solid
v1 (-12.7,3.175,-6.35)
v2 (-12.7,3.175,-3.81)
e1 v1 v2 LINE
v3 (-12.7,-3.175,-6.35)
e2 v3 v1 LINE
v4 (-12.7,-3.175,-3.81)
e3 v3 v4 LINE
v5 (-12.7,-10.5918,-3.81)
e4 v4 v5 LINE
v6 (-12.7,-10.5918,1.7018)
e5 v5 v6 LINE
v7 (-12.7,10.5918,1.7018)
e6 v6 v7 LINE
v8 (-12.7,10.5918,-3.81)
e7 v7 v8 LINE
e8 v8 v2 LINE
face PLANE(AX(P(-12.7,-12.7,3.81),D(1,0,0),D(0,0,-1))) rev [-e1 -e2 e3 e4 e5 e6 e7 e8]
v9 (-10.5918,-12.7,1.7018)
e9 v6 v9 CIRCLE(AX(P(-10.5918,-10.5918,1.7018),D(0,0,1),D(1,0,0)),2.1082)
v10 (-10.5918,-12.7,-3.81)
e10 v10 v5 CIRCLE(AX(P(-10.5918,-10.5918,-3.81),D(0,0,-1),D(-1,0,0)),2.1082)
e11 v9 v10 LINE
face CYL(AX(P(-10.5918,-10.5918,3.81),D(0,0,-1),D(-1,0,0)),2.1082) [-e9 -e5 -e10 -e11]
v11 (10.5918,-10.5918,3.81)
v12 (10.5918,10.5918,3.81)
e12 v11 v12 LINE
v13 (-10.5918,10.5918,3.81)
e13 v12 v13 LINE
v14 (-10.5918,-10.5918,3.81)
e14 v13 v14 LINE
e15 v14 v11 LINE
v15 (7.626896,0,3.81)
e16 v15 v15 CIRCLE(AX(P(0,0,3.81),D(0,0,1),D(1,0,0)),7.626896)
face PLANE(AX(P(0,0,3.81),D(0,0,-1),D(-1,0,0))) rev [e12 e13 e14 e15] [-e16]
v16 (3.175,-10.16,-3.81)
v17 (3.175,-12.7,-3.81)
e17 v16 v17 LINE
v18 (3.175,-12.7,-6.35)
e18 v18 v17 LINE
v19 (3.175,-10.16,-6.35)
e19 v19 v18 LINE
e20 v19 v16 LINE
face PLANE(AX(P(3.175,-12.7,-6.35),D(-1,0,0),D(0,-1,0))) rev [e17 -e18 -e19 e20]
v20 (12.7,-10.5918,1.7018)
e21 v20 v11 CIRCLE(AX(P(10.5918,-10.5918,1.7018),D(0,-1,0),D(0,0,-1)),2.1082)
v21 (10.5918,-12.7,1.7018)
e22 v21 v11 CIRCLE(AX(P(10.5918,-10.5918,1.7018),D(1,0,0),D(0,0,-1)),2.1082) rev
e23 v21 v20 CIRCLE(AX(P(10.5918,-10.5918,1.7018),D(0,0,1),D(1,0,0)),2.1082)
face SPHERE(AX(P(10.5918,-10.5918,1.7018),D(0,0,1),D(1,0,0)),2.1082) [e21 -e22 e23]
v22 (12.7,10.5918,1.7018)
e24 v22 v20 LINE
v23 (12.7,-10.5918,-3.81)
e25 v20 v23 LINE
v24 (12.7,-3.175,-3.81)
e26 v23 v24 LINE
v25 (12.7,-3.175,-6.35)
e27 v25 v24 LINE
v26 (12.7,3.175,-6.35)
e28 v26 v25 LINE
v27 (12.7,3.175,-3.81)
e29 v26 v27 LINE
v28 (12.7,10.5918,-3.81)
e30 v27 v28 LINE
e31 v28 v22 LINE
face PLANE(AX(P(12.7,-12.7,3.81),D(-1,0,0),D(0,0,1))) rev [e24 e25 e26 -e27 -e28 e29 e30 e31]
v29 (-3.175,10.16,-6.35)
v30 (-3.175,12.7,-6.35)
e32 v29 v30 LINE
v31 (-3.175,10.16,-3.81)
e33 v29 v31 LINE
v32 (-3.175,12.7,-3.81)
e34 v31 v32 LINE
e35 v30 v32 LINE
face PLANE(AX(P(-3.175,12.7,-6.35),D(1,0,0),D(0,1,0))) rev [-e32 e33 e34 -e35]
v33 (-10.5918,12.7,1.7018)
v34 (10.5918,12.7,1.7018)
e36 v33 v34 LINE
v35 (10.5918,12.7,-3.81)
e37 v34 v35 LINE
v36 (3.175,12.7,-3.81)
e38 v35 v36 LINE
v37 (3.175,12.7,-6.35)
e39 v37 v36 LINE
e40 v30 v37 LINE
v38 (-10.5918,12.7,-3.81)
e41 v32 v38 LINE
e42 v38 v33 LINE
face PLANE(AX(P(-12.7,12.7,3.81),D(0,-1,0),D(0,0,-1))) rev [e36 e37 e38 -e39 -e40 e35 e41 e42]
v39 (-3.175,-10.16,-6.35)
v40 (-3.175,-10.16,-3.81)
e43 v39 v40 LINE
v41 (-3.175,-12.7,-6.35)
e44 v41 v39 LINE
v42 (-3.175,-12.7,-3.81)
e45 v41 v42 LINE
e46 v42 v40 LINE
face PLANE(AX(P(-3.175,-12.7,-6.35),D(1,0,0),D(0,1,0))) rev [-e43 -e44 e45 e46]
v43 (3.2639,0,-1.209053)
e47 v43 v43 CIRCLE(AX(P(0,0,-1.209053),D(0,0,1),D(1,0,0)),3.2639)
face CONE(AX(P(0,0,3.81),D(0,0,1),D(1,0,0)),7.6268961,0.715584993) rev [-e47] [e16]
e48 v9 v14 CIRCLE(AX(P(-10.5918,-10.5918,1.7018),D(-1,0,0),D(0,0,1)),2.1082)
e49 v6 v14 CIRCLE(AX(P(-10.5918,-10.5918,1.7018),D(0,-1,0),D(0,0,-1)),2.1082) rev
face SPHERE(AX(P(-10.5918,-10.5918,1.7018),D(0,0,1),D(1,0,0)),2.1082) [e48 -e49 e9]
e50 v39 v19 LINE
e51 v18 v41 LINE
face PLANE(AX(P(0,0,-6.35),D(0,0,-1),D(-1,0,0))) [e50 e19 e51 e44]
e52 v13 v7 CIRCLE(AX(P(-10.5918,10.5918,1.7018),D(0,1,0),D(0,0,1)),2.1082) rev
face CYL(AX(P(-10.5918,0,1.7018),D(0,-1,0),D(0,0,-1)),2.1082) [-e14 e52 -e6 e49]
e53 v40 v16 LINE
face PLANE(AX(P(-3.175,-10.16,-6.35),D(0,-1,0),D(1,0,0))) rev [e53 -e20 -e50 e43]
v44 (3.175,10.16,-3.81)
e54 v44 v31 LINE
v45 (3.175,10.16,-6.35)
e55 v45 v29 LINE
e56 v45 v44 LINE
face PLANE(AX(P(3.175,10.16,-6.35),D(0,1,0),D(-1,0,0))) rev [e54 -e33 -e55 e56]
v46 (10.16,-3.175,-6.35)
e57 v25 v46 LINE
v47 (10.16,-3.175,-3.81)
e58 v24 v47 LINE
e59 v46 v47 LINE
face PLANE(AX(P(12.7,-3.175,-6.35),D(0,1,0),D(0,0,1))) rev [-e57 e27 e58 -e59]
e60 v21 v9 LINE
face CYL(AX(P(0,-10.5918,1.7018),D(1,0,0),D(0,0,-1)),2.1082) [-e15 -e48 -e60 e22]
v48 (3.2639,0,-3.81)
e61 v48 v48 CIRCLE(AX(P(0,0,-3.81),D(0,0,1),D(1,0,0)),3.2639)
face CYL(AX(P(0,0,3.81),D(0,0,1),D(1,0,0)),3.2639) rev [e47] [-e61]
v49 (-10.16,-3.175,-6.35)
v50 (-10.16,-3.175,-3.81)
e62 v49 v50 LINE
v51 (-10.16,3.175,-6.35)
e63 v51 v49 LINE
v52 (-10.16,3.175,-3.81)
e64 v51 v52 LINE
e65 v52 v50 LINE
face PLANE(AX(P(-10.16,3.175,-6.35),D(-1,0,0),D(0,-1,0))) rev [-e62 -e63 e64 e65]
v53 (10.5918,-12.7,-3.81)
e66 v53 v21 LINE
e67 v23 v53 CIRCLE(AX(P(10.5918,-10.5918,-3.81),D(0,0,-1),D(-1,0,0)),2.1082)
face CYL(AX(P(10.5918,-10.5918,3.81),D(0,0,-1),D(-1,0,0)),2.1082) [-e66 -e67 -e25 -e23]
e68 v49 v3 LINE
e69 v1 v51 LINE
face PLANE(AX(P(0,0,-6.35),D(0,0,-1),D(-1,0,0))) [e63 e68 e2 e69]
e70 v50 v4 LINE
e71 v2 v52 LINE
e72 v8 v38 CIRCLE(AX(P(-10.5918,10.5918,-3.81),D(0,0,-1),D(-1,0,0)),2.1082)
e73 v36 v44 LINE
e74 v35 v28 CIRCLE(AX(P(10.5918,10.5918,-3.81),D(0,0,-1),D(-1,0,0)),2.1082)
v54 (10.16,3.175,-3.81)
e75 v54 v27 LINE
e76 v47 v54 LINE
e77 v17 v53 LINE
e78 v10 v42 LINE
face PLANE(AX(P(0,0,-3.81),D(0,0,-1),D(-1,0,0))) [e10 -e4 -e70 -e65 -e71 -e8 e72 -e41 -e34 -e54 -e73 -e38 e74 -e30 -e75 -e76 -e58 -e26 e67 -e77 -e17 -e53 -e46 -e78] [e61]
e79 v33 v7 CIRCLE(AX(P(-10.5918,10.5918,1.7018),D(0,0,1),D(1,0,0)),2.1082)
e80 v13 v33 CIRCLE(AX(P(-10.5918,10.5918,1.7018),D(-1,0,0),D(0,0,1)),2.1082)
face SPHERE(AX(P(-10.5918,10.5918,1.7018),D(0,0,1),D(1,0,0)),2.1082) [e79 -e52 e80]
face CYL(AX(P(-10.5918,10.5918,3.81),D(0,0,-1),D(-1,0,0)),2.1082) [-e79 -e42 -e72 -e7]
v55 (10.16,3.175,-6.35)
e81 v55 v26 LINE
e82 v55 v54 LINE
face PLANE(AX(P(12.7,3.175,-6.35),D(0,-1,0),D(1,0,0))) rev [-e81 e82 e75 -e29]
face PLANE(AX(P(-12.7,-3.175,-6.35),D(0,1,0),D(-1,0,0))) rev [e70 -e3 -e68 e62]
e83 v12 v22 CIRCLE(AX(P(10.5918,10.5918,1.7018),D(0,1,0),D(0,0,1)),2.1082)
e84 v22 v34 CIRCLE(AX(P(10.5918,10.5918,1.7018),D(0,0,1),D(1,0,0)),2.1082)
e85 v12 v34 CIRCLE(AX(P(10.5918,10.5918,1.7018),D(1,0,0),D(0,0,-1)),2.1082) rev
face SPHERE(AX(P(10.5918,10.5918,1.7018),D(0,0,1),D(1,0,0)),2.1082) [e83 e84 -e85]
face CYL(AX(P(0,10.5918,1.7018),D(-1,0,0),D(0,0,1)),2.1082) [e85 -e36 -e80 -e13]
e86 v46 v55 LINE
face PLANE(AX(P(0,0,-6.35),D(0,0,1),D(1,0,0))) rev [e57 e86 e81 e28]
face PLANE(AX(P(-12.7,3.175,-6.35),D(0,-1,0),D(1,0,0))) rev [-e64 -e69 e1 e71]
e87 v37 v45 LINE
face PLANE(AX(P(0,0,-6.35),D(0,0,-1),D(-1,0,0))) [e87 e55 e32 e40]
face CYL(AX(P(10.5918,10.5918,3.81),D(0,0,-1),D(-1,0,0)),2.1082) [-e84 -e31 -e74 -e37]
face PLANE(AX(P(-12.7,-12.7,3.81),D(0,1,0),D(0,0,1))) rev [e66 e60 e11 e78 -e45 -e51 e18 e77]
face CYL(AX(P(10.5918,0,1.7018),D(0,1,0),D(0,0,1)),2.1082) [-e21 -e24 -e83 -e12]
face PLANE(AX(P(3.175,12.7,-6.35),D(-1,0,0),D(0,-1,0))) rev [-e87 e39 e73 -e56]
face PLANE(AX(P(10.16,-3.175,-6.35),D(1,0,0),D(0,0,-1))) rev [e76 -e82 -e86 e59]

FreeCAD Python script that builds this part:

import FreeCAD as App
import Part
import Sketcher
Q = App.Units.Quantity


def edges_at(feature, points):
    """Names of the edges that pass closest to the given points."""
    edges = feature.Shape.Edges
    near = lambda p: min(range(len(edges)), key=lambda i: edges[i].distToShape(Part.Vertex(*p))[0])
    return sorted({f"Edge{near(p) + 1}" for p in points})

doc = App.newDocument("Part")
body = doc.addObject("PartDesign::Body", "Body")

# Sketch on XY plane
sketch1 = doc.addObject("Sketcher::SketchObject", "Sketch")
body.addObject(sketch1)
sketch1.AttachmentSupport = (doc.XY_Plane, [""])
sketch1.MapMode = "FlatFace"
sketch1.addGeometry(Part.LineSegment(App.Vector(-12.7, 12.7, 0), App.Vector(-12.7, -12.7, 0)), False)
sketch1.addGeometry(Part.LineSegment(App.Vector(-12.7, -12.7, 0), App.Vector(12.7, -12.7, 0)), False)
sketch1.addGeometry(Part.LineSegment(App.Vector(12.7, -12.7, 0), App.Vector(12.7, 12.7, 0)), False)
sketch1.addGeometry(Part.LineSegment(App.Vector(12.7, 12.7, 0), App.Vector(-12.7, 12.7, 0)), False)
sketch1.addConstraint(Sketcher.Constraint("Coincident", 0, 2, 1, 1))
sketch1.addConstraint(Sketcher.Constraint("Coincident", 1, 2, 2, 1))
sketch1.addConstraint(Sketcher.Constraint("Coincident", 2, 2, 3, 1))
sketch1.addConstraint(Sketcher.Constraint("Coincident", 3, 2, 0, 1))
sketch1.addConstraint(Sketcher.Constraint("Vertical", 0))
sketch1.addConstraint(Sketcher.Constraint("Horizontal", 1))
sketch1.addConstraint(Sketcher.Constraint("Vertical", 2))
sketch1.addConstraint(Sketcher.Constraint("Horizontal", 3))
sketch1.addConstraint(Sketcher.Constraint("Symmetric", 0, 2, 2, 2, -1, 1))
sketch1.addConstraint(Sketcher.Constraint("Equal", 3, 0))
sketch1.addConstraint(Sketcher.Constraint("DistanceX", 1, 1, 1, 2, Q("1 in")))
pad1 = doc.addObject("PartDesign::Pad", "Pad")
body.addObject(pad1)
pad1.Profile = sketch1
pad1.Length = Q("0.3 in")
pad1.Midplane = True

# Sketch on YZ plane
sketch2 = doc.addObject("Sketcher::SketchObject", "Sketch001")
body.addObject(sketch2)
sketch2.AttachmentSupport = (doc.YZ_Plane, [""])
sketch2.MapMode = "FlatFace"
sketch2.addGeometry(Part.LineSegment(App.Vector(0, -3.81, 0), App.Vector(0, 3.81, 0)), False)
sketch2.addGeometry(Part.LineSegment(App.Vector(0, 3.81, 0), App.Vector(-7.626896, 3.81, 0)), False)
sketch2.addGeometry(Part.LineSegment(App.Vector(-7.626896, 3.81, 0), App.Vector(-3.2639, -1.209053, 0)), False)
sketch2.addGeometry(Part.LineSegment(App.Vector(-3.2639, -1.209053, 0), App.Vector(-3.2639, -3.81, 0)), False)
sketch2.addGeometry(Part.LineSegment(App.Vector(-3.2639, -3.81, 0), App.Vector(0, -3.81, 0)), False)
sketch2.addConstraint(Sketcher.Constraint("Coincident", 0, 2, 1, 1))
sketch2.addConstraint(Sketcher.Constraint("Coincident", 1, 2, 2, 1))
sketch2.addConstraint(Sketcher.Constraint("Coincident", 2, 2, 3, 1))
sketch2.addConstraint(Sketcher.Constraint("Coincident", 3, 2, 4, 1))
sketch2.addConstraint(Sketcher.Constraint("Coincident", 4, 2, 0, 1))
sketch2.addConstraint(Sketcher.Constraint("Vertical", 0))
sketch2.addConstraint(Sketcher.Constraint("Horizontal", 1))
sketch2.addConstraint(Sketcher.Constraint("Vertical", 3))
sketch2.addConstraint(Sketcher.Constraint("Horizontal", 4))
sketch2.addConstraint(Sketcher.Constraint("Symmetric", 0, 2, 4, 2, -1, 1))
sketch2.addConstraint(Sketcher.Constraint("DistanceY", 0, 1, 0, 2, Q("0.3 in")))
sketch2.addConstraint(Sketcher.Constraint("Angle", 2, Q("-49 deg")))
sketch2.addConstraint(Sketcher.Constraint("DistanceX", 4, 1, 4, 2, Q("0.1285 in")))
sketch2.addConstraint(Sketcher.Constraint("Distance", 2, Q("6.65031 mm")))
groove = doc.addObject("PartDesign::Groove", "Groove")
body.addObject(groove)
groove.Profile = sketch2
groove.ReferenceAxis = (sketch2, ["V_Axis"])
groove.Angle = 360
doc.recompute()

fillet = doc.addObject("PartDesign::Fillet", "Fillet")
body.addObject(fillet)
fillet.Base = (groove, edges_at(groove, [
    (-12.7, 0, 3.81),
    (0, -12.7, 3.81),
    (12.7, 0, 3.81),
    (12.7, -12.7, 0),
    (-12.7, -12.7, 0),
    (-12.7, 12.7, 0),
    (12.7, 12.7, 0),
    (0, 12.7, 3.81),
]))
fillet.Radius = Q("0.083 in")

# Sketch on XY plane
sketch3 = doc.addObject("Sketcher::SketchObject", "Sketch002")
body.addObject(sketch3)
sketch3.AttachmentSupport = (doc.XY_Plane, [""])
sketch3.MapMode = "FlatFace"
sketch3.AttachmentOffset = App.Placement(App.Vector(0, 0, -0.15 * 25.4), App.Rotation())
sketch3.addGeometry(Part.LineSegment(App.Vector(3.175, 12.7, 0), App.Vector(3.175, 10.16, 0)), False)
sketch3.addGeometry(Part.LineSegment(App.Vector(3.175, 10.16, 0), App.Vector(-3.175, 10.16, 0)), False)
sketch3.addGeometry(Part.LineSegment(App.Vector(-3.175, 10.16, 0), App.Vector(-3.175, 12.7, 0)), False)
sketch3.addGeometry(Part.LineSegment(App.Vector(-3.175, 12.7, 0), App.Vector(3.175, 12.7, 0)), False)
sketch3.addGeometry(Part.LineSegment(App.Vector(12.7, 3.175, 0), App.Vector(12.7, -3.175, 0)), False)
sketch3.addGeometry(Part.LineSegment(App.Vector(12.7, -3.175, 0), App.Vector(10.16, -3.175, 0)), False)
sketch3.addGeometry(Part.LineSegment(App.Vector(10.16, -3.175, 0), App.Vector(10.16, 3.175, 0)), False)
sketch3.addGeometry(Part.LineSegment(App.Vector(10.16, 3.175, 0), App.Vector(12.7, 3.175, 0)), False)
sketch3.addGeometry(Part.LineSegment(App.Vector(-10.16, 3.175, 0), App.Vector(-10.16, -3.175, 0)), False)
sketch3.addGeometry(Part.LineSegment(App.Vector(-10.16, -3.175, 0), App.Vector(-12.7, -3.175, 0)), False)
sketch3.addGeometry(Part.LineSegment(App.Vector(-12.7, -3.175, 0), App.Vector(-12.7, 3.175, 0)), False)
sketch3.addGeometry(Part.LineSegment(App.Vector(-12.7, 3.175, 0), App.Vector(-10.16, 3.175, 0)), False)
sketch3.addGeometry(Part.LineSegment(App.Vector(3.175, -10.16, 0), App.Vector(3.175, -12.7, 0)), False)
sketch3.addGeometry(Part.LineSegment(App.Vector(3.175, -12.7, 0), App.Vector(-3.175, -12.7, 0)), False)
sketch3.addGeometry(Part.LineSegment(App.Vector(-3.175, -12.7, 0), App.Vector(-3.175, -10.16, 0)), False)
sketch3.addGeometry(Part.LineSegment(App.Vector(-3.175, -10.16, 0), App.Vector(3.175, -10.16, 0)), False)
sketch3.addConstraint(Sketcher.Constraint("Coincident", 0, 2, 1, 1))
sketch3.addConstraint(Sketcher.Constraint("Coincident", 1, 2, 2, 1))
sketch3.addConstraint(Sketcher.Constraint("Coincident", 2, 2, 3, 1))
sketch3.addConstraint(Sketcher.Constraint("Coincident", 3, 2, 0, 1))
sketch3.addConstraint(Sketcher.Constraint("Coincident", 4, 2, 5, 1))
sketch3.addConstraint(Sketcher.Constraint("Coincident", 5, 2, 6, 1))
sketch3.addConstraint(Sketcher.Constraint("Coincident", 6, 2, 7, 1))
sketch3.addConstraint(Sketcher.Constraint("Coincident", 7, 2, 4, 1))
sketch3.addConstraint(Sketcher.Constraint("Coincident", 8, 2, 9, 1))
sketch3.addConstraint(Sketcher.Constraint("Coincident", 9, 2, 10, 1))
sketch3.addConstraint(Sketcher.Constraint("Coincident", 10, 2, 11, 1))
sketch3.addConstraint(Sketcher.Constraint("Coincident", 11, 2, 8, 1))
sketch3.addConstraint(Sketcher.Constraint("Coincident", 12, 2, 13, 1))
sketch3.addConstraint(Sketcher.Constraint("Coincident", 13, 2, 14, 1))
sketch3.addConstraint(Sketcher.Constraint("Coincident", 14, 2, 15, 1))
sketch3.addConstraint(Sketcher.Constraint("Coincident", 15, 2, 12, 1))
sketch3.addConstraint(Sketcher.Constraint("Vertical", 0))
sketch3.addConstraint(Sketcher.Constraint("Horizontal", 1))
sketch3.addConstraint(Sketcher.Constraint("Vertical", 2))
sketch3.addConstraint(Sketcher.Constraint("Horizontal", 3))
sketch3.addConstraint(Sketcher.Constraint("Vertical", 4))
sketch3.addConstraint(Sketcher.Constraint("Horizontal", 5))
sketch3.addConstraint(Sketcher.Constraint("Vertical", 6))
sketch3.addConstraint(Sketcher.Constraint("Horizontal", 7))
sketch3.addConstraint(Sketcher.Constraint("Vertical", 8))
sketch3.addConstraint(Sketcher.Constraint("Horizontal", 9))
sketch3.addConstraint(Sketcher.Constraint("Vertical", 10))
sketch3.addConstraint(Sketcher.Constraint("Horizontal", 11))
sketch3.addConstraint(Sketcher.Constraint("Vertical", 12))
sketch3.addConstraint(Sketcher.Constraint("Horizontal", 13))
sketch3.addConstraint(Sketcher.Constraint("Vertical", 14))
sketch3.addConstraint(Sketcher.Constraint("Horizontal", 15))
sketch3.addConstraint(Sketcher.Constraint("Symmetric", 6, 2, 8, 2, -1, 1))
sketch3.addConstraint(Sketcher.Constraint("Symmetric", 4, 2, 10, 2, -1, 1))
sketch3.addConstraint(Sketcher.Constraint("Symmetric", 2, 2, 12, 2, -1, 1))
sketch3.addConstraint(Sketcher.Constraint("Symmetric", 0, 2, 14, 2, -1, 1))
sketch3.addConstraint(Sketcher.Constraint("Horizontal", 5, 2, 8, 2))
sketch3.addConstraint(Sketcher.Constraint("Vertical", 3, 2, 12, 2))
sketch3.addConstraint(Sketcher.Constraint("Equal", 11, 0))
sketch3.addConstraint(Sketcher.Constraint("Equal", 15, 4))
sketch3.addConstraint(Sketcher.Constraint("DistanceX", 5, 2, 5, 1, Q("0.1 in")))
sketch3.addConstraint(Sketcher.Constraint("DistanceX", 1, 2, 1, 1, Q("0.25 in")))
sketch3.addConstraint(Sketcher.Constraint("DistanceY", -1, 1, 0, 2, Q("0.4 in")))
sketch3.addConstraint(Sketcher.Constraint("DistanceX", -1, 1, 4, 2, Q("0.5 in")))
pad2 = doc.addObject("PartDesign::Pad", "Pad001")
body.addObject(pad2)
pad2.Profile = sketch3
pad2.Length = Q("0.1 in")
pad2.Reversed = True

doc.recompute()
